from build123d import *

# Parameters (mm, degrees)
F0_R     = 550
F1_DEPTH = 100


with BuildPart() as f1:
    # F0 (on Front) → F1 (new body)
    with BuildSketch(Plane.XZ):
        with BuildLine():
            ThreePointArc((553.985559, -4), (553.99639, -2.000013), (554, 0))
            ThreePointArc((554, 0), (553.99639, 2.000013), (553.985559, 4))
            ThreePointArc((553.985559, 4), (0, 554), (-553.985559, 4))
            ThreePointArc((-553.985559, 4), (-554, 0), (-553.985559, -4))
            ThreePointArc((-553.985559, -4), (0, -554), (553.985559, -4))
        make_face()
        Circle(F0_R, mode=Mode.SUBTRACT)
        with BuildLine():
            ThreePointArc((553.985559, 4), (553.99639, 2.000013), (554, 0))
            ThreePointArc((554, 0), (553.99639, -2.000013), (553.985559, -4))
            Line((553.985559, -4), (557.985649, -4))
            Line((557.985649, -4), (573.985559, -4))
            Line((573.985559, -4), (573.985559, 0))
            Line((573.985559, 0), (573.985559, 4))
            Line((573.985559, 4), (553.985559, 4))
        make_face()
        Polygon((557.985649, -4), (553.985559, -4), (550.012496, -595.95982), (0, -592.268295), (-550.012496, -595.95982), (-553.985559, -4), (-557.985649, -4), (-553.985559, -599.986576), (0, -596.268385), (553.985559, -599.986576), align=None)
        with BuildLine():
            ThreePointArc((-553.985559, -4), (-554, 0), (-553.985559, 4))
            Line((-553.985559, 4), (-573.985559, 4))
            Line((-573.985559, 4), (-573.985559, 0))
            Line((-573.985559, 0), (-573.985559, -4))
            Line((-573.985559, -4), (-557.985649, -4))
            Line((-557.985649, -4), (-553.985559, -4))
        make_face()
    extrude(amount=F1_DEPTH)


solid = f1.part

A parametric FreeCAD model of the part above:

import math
import FreeCAD as App
import Part
import Sketcher

V = App.Vector

doc = App.newDocument("Part")
body = doc.addObject("PartDesign::Body", "Body")

# Sketch on XZ plane
sketch1 = body.newObject("Sketcher::SketchObject", "Sketch")
sketch1.AttachmentSupport = (doc.getObject("XZ_Plane"), [""])
sketch1.MapMode = "FlatFace"
sketch1.addGeometry([
    Part.ArcOfCircle(Part.Circle(V(0, 0, 0), V(0, 0, 1), 554), math.radians(0.413691), math.radians(179.586309)),  # 0
    Part.LineSegment(V(-553.985559, 4, 0), V(-573.985559, 4, 0)),  # 1
    Part.LineSegment(V(-573.985559, 4, 0), V(-573.985559, -4, 0)),  # 2
    Part.LineSegment(V(-573.985559, -4, 0), V(-557.985649, -4, 0)),  # 3
    Part.LineSegment(V(-557.985649, -4, 0), V(-553.985559, -599.986576, 0)),  # 4
    Part.LineSegment(V(-553.985559, -599.986576, 0), V(0, -596.268385, 0)),  # 5
    Part.LineSegment(V(0, -596.268385, 0), V(553.985559, -599.986576, 0)),  # 6
    Part.LineSegment(V(553.985559, -599.986576, 0), V(557.985649, -4, 0)),  # 7
    Part.LineSegment(V(557.985649, -4, 0), V(573.985559, -4, 0)),  # 8
    Part.LineSegment(V(573.985559, -4, 0), V(573.985559, 4, 0)),  # 9
    Part.LineSegment(V(573.985559, 4, 0), V(553.985559, 4, 0)),  # 10
    Part.LineSegment(V(-550.012496, -595.95982, 0), V(-553.985559, -4, 0)),  # 11
    Part.ArcOfCircle(Part.Circle(V(0, 0, 0), V(0, 0, 1), 554), math.radians(-179.586309), math.radians(-0.413691)),  # 12
    Part.LineSegment(V(553.985559, -4, 0), V(550.012496, -595.95982, 0)),  # 13
    Part.LineSegment(V(550.012496, -595.95982, 0), V(0, -592.268295, 0)),  # 14
    Part.LineSegment(V(0, -592.268295, 0), V(-550.012496, -595.95982, 0)),  # 15
    Part.Circle(V(0, 0, 0), V(0, 0, 1), 550),  # 16
], False)
sketch1.addConstraint([
    Sketcher.Constraint("Coincident", 0, 2, 1, 1),
    Sketcher.Constraint("Coincident", 1, 2, 2, 1),
    Sketcher.Constraint("Coincident", 2, 2, 3, 1),
    Sketcher.Constraint("Coincident", 3, 2, 4, 1),
    Sketcher.Constraint("Coincident", 4, 2, 5, 1),
    Sketcher.Constraint("Coincident", 5, 2, 6, 1),
    Sketcher.Constraint("Coincident", 6, 2, 7, 1),
    Sketcher.Constraint("Coincident", 7, 2, 8, 1),
    Sketcher.Constraint("Coincident", 8, 2, 9, 1),
    Sketcher.Constraint("Coincident", 9, 2, 10, 1),
    Sketcher.Constraint("Coincident", 10, 2, 0, 1),
    Sketcher.Constraint("Coincident", 11, 2, 12, 1),
    Sketcher.Constraint("Coincident", 12, 2, 13, 1),
    Sketcher.Constraint("Coincident", 13, 2, 14, 1),
    Sketcher.Constraint("Coincident", 14, 2, 15, 1),
    Sketcher.Constraint("Coincident", 15, 2, 11, 1),
    Sketcher.Constraint("Horizontal", 1),
    Sketcher.Constraint("Vertical", 2),
    Sketcher.Constraint("Horizontal", 3),
    Sketcher.Constraint("Horizontal", 8),
    Sketcher.Constraint("Vertical", 9),
    Sketcher.Constraint("Horizontal", 10),
    Sketcher.Constraint("Coincident", 0, 3, -1, 1),
    Sketcher.Constraint("Coincident", 12, 3, -1, 1),
    Sketcher.Constraint("Coincident", 16, 3, -1, 1),
    Sketcher.Constraint("Equal", 0, 12),
    Sketcher.Constraint("Symmetric", 1, 2, 8, 2, -1, 1),
    Sketcher.Constraint("Symmetric", 4, 2, 6, 2, -2),
    Sketcher.Constraint("Symmetric", 3, 2, 7, 2, -2),
    Sketcher.Constraint("Symmetric", 13, 2, 15, 2, -2),
    Sketcher.Constraint("PointOnObject", 5, 2, -2),
    Sketcher.Constraint("PointOnObject", 14, 2, -2),
    Sketcher.Constraint("Perpendicular", 4, 5),
    Sketcher.Constraint("Perpendicular", 5, 11),
    Sketcher.Constraint("Perpendicular", 13, 14),
    Sketcher.Constraint("Horizontal", 1, 2, 9, 2),
    Sketcher.Constraint("Horizontal", 8, 2, 11, 2),
    Sketcher.Constraint("Vertical", 0, 2, 4, 2),
    Sketcher.Constraint("Equal", 11, 13),
    Sketcher.Constraint("Diameter", 16, 1100.0),
    Sketcher.Constraint("Radius", 0, 554.0),
    Sketcher.Constraint("DistanceX", 1, 2, 1, 1, 20.0),
    Sketcher.Constraint("DistanceY", 2, 2, 2, 1, 8.0),
    Sketcher.Constraint("Distance", 4, 596.0),
    Sketcher.Constraint("DistanceX", 3, 1, 3, 2, 15.99991),
    Sketcher.Constraint("DistanceY", 13, 2, -1, 1, 595.95982),
])
pad1 = body.newObject("PartDesign::Pad", "Pad")
pad1.Profile = sketch1
pad1.Length = 100

doc.recompute()
